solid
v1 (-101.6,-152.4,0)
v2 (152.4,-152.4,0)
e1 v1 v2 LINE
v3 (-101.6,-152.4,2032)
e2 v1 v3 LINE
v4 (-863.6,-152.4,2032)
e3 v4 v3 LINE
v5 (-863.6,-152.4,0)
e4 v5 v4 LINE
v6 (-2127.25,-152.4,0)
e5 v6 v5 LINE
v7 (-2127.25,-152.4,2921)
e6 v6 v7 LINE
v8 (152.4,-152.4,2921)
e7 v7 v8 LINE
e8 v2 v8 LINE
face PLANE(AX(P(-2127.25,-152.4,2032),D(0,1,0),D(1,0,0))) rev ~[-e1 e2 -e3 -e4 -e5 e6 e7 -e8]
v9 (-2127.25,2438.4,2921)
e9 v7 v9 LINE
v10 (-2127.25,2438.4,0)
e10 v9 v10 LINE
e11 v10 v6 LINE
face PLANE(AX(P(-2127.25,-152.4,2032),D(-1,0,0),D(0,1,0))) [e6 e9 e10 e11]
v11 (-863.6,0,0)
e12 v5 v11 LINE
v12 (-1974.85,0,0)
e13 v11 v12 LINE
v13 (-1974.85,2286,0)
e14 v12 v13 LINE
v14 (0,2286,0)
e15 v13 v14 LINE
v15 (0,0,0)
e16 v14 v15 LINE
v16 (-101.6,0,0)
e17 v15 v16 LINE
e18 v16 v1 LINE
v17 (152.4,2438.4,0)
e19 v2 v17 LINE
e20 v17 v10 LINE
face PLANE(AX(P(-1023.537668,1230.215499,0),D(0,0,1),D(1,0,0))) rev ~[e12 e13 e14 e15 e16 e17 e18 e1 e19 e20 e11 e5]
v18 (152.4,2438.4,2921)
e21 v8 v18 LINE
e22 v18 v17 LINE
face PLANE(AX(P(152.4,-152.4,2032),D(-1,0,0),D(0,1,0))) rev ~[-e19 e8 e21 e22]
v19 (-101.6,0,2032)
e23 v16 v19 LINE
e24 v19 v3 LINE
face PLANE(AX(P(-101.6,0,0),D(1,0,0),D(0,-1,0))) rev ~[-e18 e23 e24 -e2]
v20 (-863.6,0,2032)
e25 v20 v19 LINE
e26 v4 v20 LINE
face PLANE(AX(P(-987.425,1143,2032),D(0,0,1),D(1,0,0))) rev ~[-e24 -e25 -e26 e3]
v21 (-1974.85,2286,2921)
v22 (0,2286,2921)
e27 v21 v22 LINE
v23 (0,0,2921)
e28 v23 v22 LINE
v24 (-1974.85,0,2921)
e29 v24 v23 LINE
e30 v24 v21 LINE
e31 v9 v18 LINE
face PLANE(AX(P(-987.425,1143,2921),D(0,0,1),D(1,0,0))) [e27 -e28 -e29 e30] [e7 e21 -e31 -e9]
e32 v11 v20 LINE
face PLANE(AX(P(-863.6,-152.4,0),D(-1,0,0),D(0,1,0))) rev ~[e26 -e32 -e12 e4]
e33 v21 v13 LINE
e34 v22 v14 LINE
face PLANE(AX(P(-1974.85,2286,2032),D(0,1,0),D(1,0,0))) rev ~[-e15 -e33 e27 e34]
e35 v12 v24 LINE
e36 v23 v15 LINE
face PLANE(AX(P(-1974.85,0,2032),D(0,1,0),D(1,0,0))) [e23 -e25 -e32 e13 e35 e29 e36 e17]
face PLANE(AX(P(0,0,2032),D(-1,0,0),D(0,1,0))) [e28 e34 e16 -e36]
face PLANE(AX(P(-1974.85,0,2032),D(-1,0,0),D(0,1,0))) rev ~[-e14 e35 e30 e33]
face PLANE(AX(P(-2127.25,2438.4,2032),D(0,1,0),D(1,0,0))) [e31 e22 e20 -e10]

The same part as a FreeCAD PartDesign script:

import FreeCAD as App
import Part
import Sketcher
from FreeCAD import Vector
Q = App.Units.Quantity


def add_polygon(sketch, points):
    """Adds a closed chain of lines whose ends are joined by coincident constraints."""
    first, n = sketch.GeometryCount, len(points)
    for a, b in zip(points, points[1:] + points[:1]):
        sketch.addGeometry(Part.LineSegment(App.Vector(*a, 0), App.Vector(*b, 0)), False)
    for i in range(n):
        sketch.addConstraint(Sketcher.Constraint("Coincident", first + i, 2, first + (i + 1) % n, 1))

doc = App.newDocument("Part")
body = doc.addObject("PartDesign::Body", "Body")

sketch1 = doc.addObject("Sketcher::SketchObject", "Sketch")
body.addObject(sketch1)
sketch1.AttachmentSupport = (doc.XY_Plane, [""])
sketch1.MapMode = "FlatFace"
add_polygon(sketch1, [(0, 2286), (0, 0), (-101.6, 0), (-101.6, -152.4), (152.4, -152.4), (152.4, 2438.4), (-2127.25, 2438.4), (-2127.25, -152.4), (-863.6, -152.4), (-863.6, 0), (-1974.85, 0), (-1974.85, 2286)])
sketch1.addConstraint([
    Sketcher.Constraint("Vertical", 0),
    Sketcher.Constraint("Horizontal", 1),
    Sketcher.Constraint("Vertical", 2),
    Sketcher.Constraint("Horizontal", 3),
    Sketcher.Constraint("Vertical", 4),
    Sketcher.Constraint("Horizontal", 5),
    Sketcher.Constraint("Vertical", 6),
    Sketcher.Constraint("Horizontal", 7),
    Sketcher.Constraint("Vertical", 8),
    Sketcher.Constraint("Horizontal", 9),
    Sketcher.Constraint("Vertical", 10),
    Sketcher.Constraint("Horizontal", 11),
    Sketcher.Constraint("Coincident", 0, 2, -1, 1),
    Sketcher.Constraint("PointOnObject", 8, 2, -1),
    Sketcher.Constraint("Horizontal", 3, 2, 6, 2),
    Sketcher.Constraint("DistanceX", 1, 2, 1, 1, Q("4 in")),
    Sketcher.Constraint("DistanceX", 3, 1, 3, 2, Q("10 in")),
    Sketcher.Constraint("DistanceY", 0, 2, 0, 1, Q("90 in")),
    Sketcher.Constraint("DistanceY", 2, 2, 2, 1, Q("6 in")),
    Sketcher.Constraint("DistanceY", 4, 1, 4, 2, Q("102 in")),
    Sketcher.Constraint("DistanceX", 7, 2, -1, 1, Q("34 in")),
    Sketcher.Constraint("DistanceX", 6, 2, 9, 2, Q("6 in")),
    Sketcher.Constraint("DistanceX", 5, 2, 5, 1, Q("89.75 in")),
])
pad1 = doc.addObject("PartDesign::Pad", "Pad")
body.addObject(pad1)
pad1.Profile = sketch1
pad1.Length = Q("80 in")

sketch2 = doc.addObject("Sketcher::SketchObject", "Sketch001")
body.addObject(sketch2)
sketch2.AttachmentSupport = (doc.XY_Plane, [""])
sketch2.MapMode = "FlatFace"
sketch2.AttachmentOffset = App.Placement(Vector(0, 0, 80 * 25.4), App.Rotation())
add_polygon(sketch2, [(-2127.25, 2438.4), (-2127.25, -152.4), (152.4, -152.4), (152.4, 2438.4)])
add_polygon(sketch2, [(0, 0), (-1974.85, 0), (-1974.85, 2286), (0, 2286)])
sketch2.addConstraint([
    Sketcher.Constraint("Vertical", 0),
    Sketcher.Constraint("Horizontal", 1),
    Sketcher.Constraint("Vertical", 2),
    Sketcher.Constraint("Horizontal", 3),
    Sketcher.Constraint("Horizontal", 4),
    Sketcher.Constraint("Vertical", 5),
    Sketcher.Constraint("Horizontal", 6),
    Sketcher.Constraint("Vertical", 7),
    Sketcher.Constraint("Coincident", 7, 2, -1, 1),
    Sketcher.Constraint("DistanceY", 0, 2, 0, 1, Q("102 in")),
    Sketcher.Constraint("DistanceY", 5, 1, 5, 2, Q("90 in")),
    Sketcher.Constraint("DistanceY", 0, 2, -1, 1, Q("6 in")),
    Sketcher.Constraint("DistanceX", -1, 1, 1, 2, Q("6 in")),
    Sketcher.Constraint("DistanceX", 0, 2, 4, 2, Q("6 in")),
    Sketcher.Constraint("DistanceX", 1, 1, 1, 2, Q("89.75 in")),
])
pad2 = doc.addObject("PartDesign::Pad", "Pad001")
body.addObject(pad2)
pad2.Profile = sketch2
pad2.Length = Q("35 in")

doc.recompute()
